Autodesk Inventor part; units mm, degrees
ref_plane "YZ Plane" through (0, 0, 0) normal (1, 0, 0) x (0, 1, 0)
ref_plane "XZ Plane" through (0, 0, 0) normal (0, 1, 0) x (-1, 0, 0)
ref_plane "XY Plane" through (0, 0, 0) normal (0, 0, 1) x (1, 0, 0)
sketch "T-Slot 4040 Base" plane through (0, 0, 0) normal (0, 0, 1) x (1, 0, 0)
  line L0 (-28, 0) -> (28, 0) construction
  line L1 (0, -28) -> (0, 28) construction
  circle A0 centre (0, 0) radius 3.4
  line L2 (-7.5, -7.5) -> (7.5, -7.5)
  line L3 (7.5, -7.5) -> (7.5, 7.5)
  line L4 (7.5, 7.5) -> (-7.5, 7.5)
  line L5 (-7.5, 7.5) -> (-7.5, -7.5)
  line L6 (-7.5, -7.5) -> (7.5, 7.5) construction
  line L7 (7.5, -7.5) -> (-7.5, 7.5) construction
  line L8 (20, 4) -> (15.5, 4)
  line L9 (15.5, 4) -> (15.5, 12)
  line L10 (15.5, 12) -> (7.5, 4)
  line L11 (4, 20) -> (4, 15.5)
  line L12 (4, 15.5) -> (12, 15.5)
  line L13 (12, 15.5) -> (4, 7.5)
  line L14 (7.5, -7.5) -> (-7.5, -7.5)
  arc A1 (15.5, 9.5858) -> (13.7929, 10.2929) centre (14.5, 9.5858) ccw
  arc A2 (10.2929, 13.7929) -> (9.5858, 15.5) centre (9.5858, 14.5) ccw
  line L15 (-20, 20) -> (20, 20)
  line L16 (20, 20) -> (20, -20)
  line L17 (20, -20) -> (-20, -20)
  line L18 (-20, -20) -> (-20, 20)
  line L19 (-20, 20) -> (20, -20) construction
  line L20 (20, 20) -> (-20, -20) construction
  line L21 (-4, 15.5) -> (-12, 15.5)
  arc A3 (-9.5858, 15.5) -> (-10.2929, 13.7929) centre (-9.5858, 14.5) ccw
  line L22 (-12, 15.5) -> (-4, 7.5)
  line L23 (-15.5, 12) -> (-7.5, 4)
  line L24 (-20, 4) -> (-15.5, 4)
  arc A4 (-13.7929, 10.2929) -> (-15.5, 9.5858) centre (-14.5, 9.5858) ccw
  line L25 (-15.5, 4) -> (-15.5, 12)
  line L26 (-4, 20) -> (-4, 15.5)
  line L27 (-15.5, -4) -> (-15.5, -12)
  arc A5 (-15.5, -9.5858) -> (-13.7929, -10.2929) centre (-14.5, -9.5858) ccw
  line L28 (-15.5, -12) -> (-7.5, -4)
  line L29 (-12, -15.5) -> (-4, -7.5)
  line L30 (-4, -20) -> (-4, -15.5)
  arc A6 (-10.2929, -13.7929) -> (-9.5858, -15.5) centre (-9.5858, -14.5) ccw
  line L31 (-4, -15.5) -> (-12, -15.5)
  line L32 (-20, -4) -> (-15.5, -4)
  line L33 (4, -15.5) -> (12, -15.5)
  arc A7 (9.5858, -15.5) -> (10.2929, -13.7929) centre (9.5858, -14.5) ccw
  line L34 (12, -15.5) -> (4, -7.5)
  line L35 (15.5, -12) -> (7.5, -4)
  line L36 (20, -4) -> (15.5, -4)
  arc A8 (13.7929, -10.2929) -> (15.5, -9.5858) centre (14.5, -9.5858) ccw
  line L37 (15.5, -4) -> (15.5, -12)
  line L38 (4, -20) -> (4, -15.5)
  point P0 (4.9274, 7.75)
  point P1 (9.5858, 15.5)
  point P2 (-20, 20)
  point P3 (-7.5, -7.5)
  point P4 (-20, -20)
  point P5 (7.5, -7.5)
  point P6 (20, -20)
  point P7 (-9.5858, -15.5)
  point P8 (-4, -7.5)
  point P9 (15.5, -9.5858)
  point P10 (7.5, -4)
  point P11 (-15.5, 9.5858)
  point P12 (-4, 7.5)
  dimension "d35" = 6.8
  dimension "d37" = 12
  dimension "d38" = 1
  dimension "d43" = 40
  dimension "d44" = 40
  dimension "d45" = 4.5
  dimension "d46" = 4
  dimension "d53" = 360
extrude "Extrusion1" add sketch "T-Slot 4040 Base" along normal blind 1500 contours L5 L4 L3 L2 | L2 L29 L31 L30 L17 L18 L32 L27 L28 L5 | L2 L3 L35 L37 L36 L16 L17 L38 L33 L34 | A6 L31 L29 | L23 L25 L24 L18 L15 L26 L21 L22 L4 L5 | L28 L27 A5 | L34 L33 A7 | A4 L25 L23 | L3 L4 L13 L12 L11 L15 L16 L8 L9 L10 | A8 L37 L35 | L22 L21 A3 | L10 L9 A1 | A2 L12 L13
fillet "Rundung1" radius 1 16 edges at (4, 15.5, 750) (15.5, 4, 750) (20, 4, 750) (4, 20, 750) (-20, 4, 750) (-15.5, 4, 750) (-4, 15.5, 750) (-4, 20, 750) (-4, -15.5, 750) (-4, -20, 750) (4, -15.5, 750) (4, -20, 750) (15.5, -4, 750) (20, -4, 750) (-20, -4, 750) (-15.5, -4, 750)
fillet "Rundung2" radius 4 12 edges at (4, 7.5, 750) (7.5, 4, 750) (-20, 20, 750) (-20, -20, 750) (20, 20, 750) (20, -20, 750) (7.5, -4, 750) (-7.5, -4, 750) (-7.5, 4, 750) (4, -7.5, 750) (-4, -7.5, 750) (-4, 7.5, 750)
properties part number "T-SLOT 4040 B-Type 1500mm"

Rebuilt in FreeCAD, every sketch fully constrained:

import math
import FreeCAD as App
import Part
import Sketcher


def edges_at(feature, points):
    """Names of the edges that pass closest to the given points."""
    edges = feature.Shape.Edges
    near = lambda p: min(range(len(edges)), key=lambda i: edges[i].distToShape(Part.Vertex(*p))[0])
    return sorted({f"Edge{near(p) + 1}" for p in points})

doc = App.newDocument("Part")
body = doc.addObject("PartDesign::Body", "Body")

# Sketch on XY plane
sketch1 = body.newObject("Sketcher::SketchObject", "Sketch")
sketch1.AttachmentSupport = (doc.getObject("XY_Plane"), [""])
sketch1.MapMode = "FlatFace"
sketch1.addGeometry([
    Part.LineSegment(App.Vector(-7.5, 4, 0), App.Vector(-7.5, -4, 0)),  # 0
    Part.LineSegment(App.Vector(-7.5, -4, 0), App.Vector(-13.7929, -10.2929, 0)),  # 1
    Part.ArcOfCircle(Part.Circle(App.Vector(-14.5, -9.5858, 0), App.Vector(0, 0, 1), 1), math.radians(180), math.radians(315)),  # 2
    Part.LineSegment(App.Vector(-15.5, -9.5858, 0), App.Vector(-15.5, -4, 0)),  # 3
    Part.LineSegment(App.Vector(-15.5, -4, 0), App.Vector(-20, -4, 0)),  # 4
    Part.LineSegment(App.Vector(-20, -4, 0), App.Vector(-20, -20, 0)),  # 5
    Part.LineSegment(App.Vector(-20, -20, 0), App.Vector(-4, -20, 0)),  # 6
    Part.LineSegment(App.Vector(-4, -20, 0), App.Vector(-4, -15.5, 0)),  # 7
    Part.LineSegment(App.Vector(-4, -15.5, 0), App.Vector(-9.5858, -15.5, 0)),  # 8
    Part.ArcOfCircle(Part.Circle(App.Vector(-9.5858, -14.5, 0), App.Vector(0, 0, 1), 0.99999), math.radians(135), math.radians(270)),  # 9
    Part.LineSegment(App.Vector(-10.2929, -13.7929, 0), App.Vector(-4, -7.5, 0)),  # 10
    Part.LineSegment(App.Vector(-4, -7.5, 0), App.Vector(4, -7.5, 0)),  # 11
    Part.LineSegment(App.Vector(4, -7.5, 0), App.Vector(10.2929, -13.7929, 0)),  # 12
    Part.ArcOfCircle(Part.Circle(App.Vector(9.5858, -14.5, 0), App.Vector(0, 0, 1), 1), math.radians(-90), math.radians(45)),  # 13
    Part.LineSegment(App.Vector(9.5858, -15.5, 0), App.Vector(4, -15.5, 0)),  # 14
    Part.LineSegment(App.Vector(4, -15.5, 0), App.Vector(4, -20, 0)),  # 15
    Part.LineSegment(App.Vector(4, -20, 0), App.Vector(20, -20, 0)),  # 16
    Part.LineSegment(App.Vector(20, -20, 0), App.Vector(20, -4, 0)),  # 17
    Part.LineSegment(App.Vector(20, -4, 0), App.Vector(15.5, -4, 0)),  # 18
    Part.LineSegment(App.Vector(15.5, -4, 0), App.Vector(15.5, -9.5858, 0)),  # 19
    Part.ArcOfCircle(Part.Circle(App.Vector(14.5, -9.5858, 0), App.Vector(0, 0, 1), 0.99999), math.radians(-135), math.radians(0)),  # 20
    Part.LineSegment(App.Vector(13.7929, -10.2929, 0), App.Vector(7.5, -4, 0)),  # 21
    Part.LineSegment(App.Vector(7.5, -4, 0), App.Vector(7.5, 4, 0)),  # 22
    Part.LineSegment(App.Vector(7.5, 4, 0), App.Vector(13.7929, 10.2929, 0)),  # 23
    Part.ArcOfCircle(Part.Circle(App.Vector(14.5, 9.5858, 0), App.Vector(0, 0, 1), 1), math.radians(0), math.radians(135)),  # 24
    Part.LineSegment(App.Vector(15.5, 9.5858, 0), App.Vector(15.5, 4, 0)),  # 25
    Part.LineSegment(App.Vector(15.5, 4, 0), App.Vector(20, 4, 0)),  # 26
    Part.LineSegment(App.Vector(20, 4, 0), App.Vector(20, 20, 0)),  # 27
    Part.LineSegment(App.Vector(20, 20, 0), App.Vector(4, 20, 0)),  # 28
    Part.LineSegment(App.Vector(4, 20, 0), App.Vector(4, 15.5, 0)),  # 29
    Part.LineSegment(App.Vector(4, 15.5, 0), App.Vector(9.5858, 15.5, 0)),  # 30
    Part.ArcOfCircle(Part.Circle(App.Vector(9.5858, 14.5, 0), App.Vector(0, 0, 1), 0.99999), math.radians(-45), math.radians(90)),  # 31
    Part.LineSegment(App.Vector(10.2929, 13.7929, 0), App.Vector(4, 7.5, 0)),  # 32
    Part.LineSegment(App.Vector(4, 7.5, 0), App.Vector(-4, 7.5, 0)),  # 33
    Part.LineSegment(App.Vector(-4, 7.5, 0), App.Vector(-10.2929, 13.7929, 0)),  # 34
    Part.ArcOfCircle(Part.Circle(App.Vector(-9.5858, 14.5, 0), App.Vector(0, 0, 1), 1), math.radians(90), math.radians(225)),  # 35
    Part.LineSegment(App.Vector(-9.5858, 15.5, 0), App.Vector(-4, 15.5, 0)),  # 36
    Part.LineSegment(App.Vector(-4, 15.5, 0), App.Vector(-4, 20, 0)),  # 37
    Part.LineSegment(App.Vector(-4, 20, 0), App.Vector(-20, 20, 0)),  # 38
    Part.LineSegment(App.Vector(-20, 20, 0), App.Vector(-20, 4, 0)),  # 39
    Part.LineSegment(App.Vector(-20, 4, 0), App.Vector(-15.5, 4, 0)),  # 40
    Part.LineSegment(App.Vector(-15.5, 4, 0), App.Vector(-15.5, 9.5858, 0)),  # 41
    Part.ArcOfCircle(Part.Circle(App.Vector(-14.5, 9.5858, 0), App.Vector(0, 0, 1), 0.99999), math.radians(45), math.radians(180)),  # 42
    Part.LineSegment(App.Vector(-13.7929, 10.2929, 0), App.Vector(-7.5, 4, 0)),  # 43
    Part.Circle(App.Vector(0, 0, 0), App.Vector(0, 0, 1), 3.4),  # 44
], False)
sketch1.addConstraint([
    Sketcher.Constraint("Coincident", 0, 2, 1, 1),
    Sketcher.Constraint("Tangent", 1, 2, 2, 2),
    Sketcher.Constraint("Tangent", 2, 1, 3, 1),
    Sketcher.Constraint("Coincident", 3, 2, 4, 1),
    Sketcher.Constraint("Coincident", 4, 2, 5, 1),
    Sketcher.Constraint("Coincident", 5, 2, 6, 1),
    Sketcher.Constraint("Coincident", 6, 2, 7, 1),
    Sketcher.Constraint("Coincident", 7, 2, 8, 1),
    Sketcher.Constraint("Tangent", 8, 2, 9, 2),
    Sketcher.Constraint("Tangent", 9, 1, 10, 1),
    Sketcher.Constraint("Coincident", 10, 2, 11, 1),
    Sketcher.Constraint("Coincident", 11, 2, 12, 1),
    Sketcher.Constraint("Tangent", 12, 2, 13, 2),
    Sketcher.Constraint("Tangent", 13, 1, 14, 1),
    Sketcher.Constraint("Coincident", 14, 2, 15, 1),
    Sketcher.Constraint("Coincident", 15, 2, 16, 1),
    Sketcher.Constraint("Coincident", 16, 2, 17, 1),
    Sketcher.Constraint("Coincident", 17, 2, 18, 1),
    Sketcher.Constraint("Coincident", 18, 2, 19, 1),
    Sketcher.Constraint("Tangent", 19, 2, 20, 2),
    Sketcher.Constraint("Tangent", 20, 1, 21, 1),
    Sketcher.Constraint("Coincident", 21, 2, 22, 1),
    Sketcher.Constraint("Coincident", 22, 2, 23, 1),
    Sketcher.Constraint("Tangent", 23, 2, 24, 2),
    Sketcher.Constraint("Tangent", 24, 1, 25, 1),
    Sketcher.Constraint("Coincident", 25, 2, 26, 1),
    Sketcher.Constraint("Coincident", 26, 2, 27, 1),
    Sketcher.Constraint("Coincident", 27, 2, 28, 1),
    Sketcher.Constraint("Coincident", 28, 2, 29, 1),
    Sketcher.Constraint("Coincident", 29, 2, 30, 1),
    Sketcher.Constraint("Tangent", 30, 2, 31, 2),
    Sketcher.Constraint("Tangent", 31, 1, 32, 1),
    Sketcher.Constraint("Coincident", 32, 2, 33, 1),
    Sketcher.Constraint("Coincident", 33, 2, 34, 1),
    Sketcher.Constraint("Tangent", 34, 2, 35, 2),
    Sketcher.Constraint("Tangent", 35, 1, 36, 1),
    Sketcher.Constraint("Coincident", 36, 2, 37, 1),
    Sketcher.Constraint("Coincident", 37, 2, 38, 1),
    Sketcher.Constraint("Coincident", 38, 2, 39, 1),
    Sketcher.Constraint("Coincident", 39, 2, 40, 1),
    Sketcher.Constraint("Coincident", 40, 2, 41, 1),
    Sketcher.Constraint("Tangent", 41, 2, 42, 2),
    Sketcher.Constraint("Tangent", 42, 1, 43, 1),
    Sketcher.Constraint("Coincident", 43, 2, 0, 1),
    Sketcher.Constraint("Vertical", 0),
    Sketcher.Constraint("Vertical", 3),
    Sketcher.Constraint("Horizontal", 4),
    Sketcher.Constraint("Vertical", 5),
    Sketcher.Constraint("Horizontal", 6),
    Sketcher.Constraint("Vertical", 7),
    Sketcher.Constraint("Horizontal", 8),
    Sketcher.Constraint("Horizontal", 11),
    Sketcher.Constraint("Horizontal", 14),
    Sketcher.Constraint("Vertical", 15),
    Sketcher.Constraint("Horizontal", 16),
    Sketcher.Constraint("Vertical", 17),
    Sketcher.Constraint("Horizontal", 18),
    Sketcher.Constraint("Vertical", 19),
    Sketcher.Constraint("Vertical", 22),
    Sketcher.Constraint("Vertical", 25),
    Sketcher.Constraint("Horizontal", 26),
    Sketcher.Constraint("Vertical", 27),
    Sketcher.Constraint("Horizontal", 28),
    Sketcher.Constraint("Vertical", 29),
    Sketcher.Constraint("Horizontal", 30),
    Sketcher.Constraint("Horizontal", 33),
    Sketcher.Constraint("Horizontal", 36),
    Sketcher.Constraint("Vertical", 37),
    Sketcher.Constraint("Horizontal", 38),
    Sketcher.Constraint("Vertical", 39),
    Sketcher.Constraint("Horizontal", 40),
    Sketcher.Constraint("Vertical", 41),
    Sketcher.Constraint("Coincident", 44, 3, -1, 1),
    Sketcher.Constraint("Equal", 2, 9),
    Sketcher.Constraint("Equal", 9, 13),
    Sketcher.Constraint("Equal", 13, 20),
    Sketcher.Constraint("Equal", 20, 24),
    Sketcher.Constraint("Equal", 24, 31),
    Sketcher.Constraint("Equal", 31, 35),
    Sketcher.Constraint("Equal", 35, 42),
    Sketcher.Constraint("Symmetric", 2, 3, 24, 3, -1, 1),
    Sketcher.Constraint("Symmetric", 9, 3, 31, 3, -1, 1),
    Sketcher.Constraint("Symmetric", 13, 3, 35, 3, -1, 1),
    Sketcher.Constraint("Symmetric", 20, 3, 42, 3, -1, 1),
    Sketcher.Constraint("Symmetric", 0, 2, 22, 2, -1, 1),
    Sketcher.Constraint("Symmetric", 4, 2, 26, 2, -1, 1),
    Sketcher.Constraint("Symmetric", 6, 2, 28, 2, -1, 1),
    Sketcher.Constraint("Symmetric", 10, 2, 32, 2, -1, 1),
    Sketcher.Constraint("Symmetric", 15, 2, 37, 2, -1, 1),
    Sketcher.Constraint("Symmetric", 17, 2, 39, 2, -1, 1),
    Sketcher.Constraint("Symmetric", 9, 3, 13, 3, -2),
    Sketcher.Constraint("Symmetric", 2, 3, 20, 3, -2),
    Sketcher.Constraint("Symmetric", 6, 2, 15, 2, -2),
    Sketcher.Constraint("Symmetric", 4, 2, 17, 2, -2),
    Sketcher.Constraint("Parallel", 1, 10),
    Sketcher.Constraint("Perpendicular", 10, 12),
    Sketcher.Constraint("Parallel", 12, 21),
    Sketcher.Constraint("Perpendicular", 32, 34),
    Sketcher.Constraint("Parallel", 34, 43),
    Sketcher.Constraint("Horizontal", 0, 2, 3, 2),
    Sketcher.Constraint("Horizontal", 9, 1, 12, 2),
    Sketcher.Constraint("Vertical", 7, 2, 10, 2),
    Sketcher.Constraint("Equal", 33, 0),
    Sketcher.Constraint("Equal", 36, 3),
    Sketcher.Constraint("Equal", 38, 5),
    Sketcher.Constraint("Equal", 40, 7),
    Sketcher.Constraint("Radius", 2, 1.0),
    Sketcher.Constraint("Diameter", 44, 6.8),
    Sketcher.Constraint("DistanceX", 4, 2, 4, 1, 4.5),
    Sketcher.Constraint("DistanceY", 0, 2, -1, 1, 4.0),
    Sketcher.Constraint("DistanceX", 6, 1, 6, 2, 16.0),
    Sketcher.Constraint("DistanceX", 2, 3, 0, 2, 7.0),
])
pad1 = body.newObject("PartDesign::Pad", "Pad")
pad1.Profile = sketch1
pad1.Length = 1500
doc.recompute()

fillet = body.newObject("PartDesign::Fillet", "Fillet")
fillet.Base = (pad1, edges_at(pad1, [
    (4, 15.5, 750),
    (15.5, 4, 750),
    (20, 4, 750),
    (4, 20, 750),
    (-20, 4, 750),
    (-15.5, 4, 750),
    (-4, 15.5, 750),
    (-4, 20, 750),
    (-4, -15.5, 750),
    (-4, -20, 750),
    (4, -15.5, 750),
    (4, -20, 750),
    (15.5, -4, 750),
    (20, -4, 750),
    (-20, -4, 750),
    (-15.5, -4, 750),
]))
fillet.Radius = 1
doc.recompute()

fillet2 = body.newObject("PartDesign::Fillet", "Fillet001")
fillet2.Base = (fillet, edges_at(fillet, [
    (4, 7.5, 750),
    (7.5, 4, 750),
    (-20, 20, 750),
    (-20, -20, 750),
    (20, 20, 750),
    (20, -20, 750),
    (7.5, -4, 750),
    (-7.5, -4, 750),
    (-7.5, 4, 750),
    (4, -7.5, 750),
    (-4, -7.5, 750),
    (-4, 7.5, 750),
]))
fillet2.Radius = 4

doc.recompute()
